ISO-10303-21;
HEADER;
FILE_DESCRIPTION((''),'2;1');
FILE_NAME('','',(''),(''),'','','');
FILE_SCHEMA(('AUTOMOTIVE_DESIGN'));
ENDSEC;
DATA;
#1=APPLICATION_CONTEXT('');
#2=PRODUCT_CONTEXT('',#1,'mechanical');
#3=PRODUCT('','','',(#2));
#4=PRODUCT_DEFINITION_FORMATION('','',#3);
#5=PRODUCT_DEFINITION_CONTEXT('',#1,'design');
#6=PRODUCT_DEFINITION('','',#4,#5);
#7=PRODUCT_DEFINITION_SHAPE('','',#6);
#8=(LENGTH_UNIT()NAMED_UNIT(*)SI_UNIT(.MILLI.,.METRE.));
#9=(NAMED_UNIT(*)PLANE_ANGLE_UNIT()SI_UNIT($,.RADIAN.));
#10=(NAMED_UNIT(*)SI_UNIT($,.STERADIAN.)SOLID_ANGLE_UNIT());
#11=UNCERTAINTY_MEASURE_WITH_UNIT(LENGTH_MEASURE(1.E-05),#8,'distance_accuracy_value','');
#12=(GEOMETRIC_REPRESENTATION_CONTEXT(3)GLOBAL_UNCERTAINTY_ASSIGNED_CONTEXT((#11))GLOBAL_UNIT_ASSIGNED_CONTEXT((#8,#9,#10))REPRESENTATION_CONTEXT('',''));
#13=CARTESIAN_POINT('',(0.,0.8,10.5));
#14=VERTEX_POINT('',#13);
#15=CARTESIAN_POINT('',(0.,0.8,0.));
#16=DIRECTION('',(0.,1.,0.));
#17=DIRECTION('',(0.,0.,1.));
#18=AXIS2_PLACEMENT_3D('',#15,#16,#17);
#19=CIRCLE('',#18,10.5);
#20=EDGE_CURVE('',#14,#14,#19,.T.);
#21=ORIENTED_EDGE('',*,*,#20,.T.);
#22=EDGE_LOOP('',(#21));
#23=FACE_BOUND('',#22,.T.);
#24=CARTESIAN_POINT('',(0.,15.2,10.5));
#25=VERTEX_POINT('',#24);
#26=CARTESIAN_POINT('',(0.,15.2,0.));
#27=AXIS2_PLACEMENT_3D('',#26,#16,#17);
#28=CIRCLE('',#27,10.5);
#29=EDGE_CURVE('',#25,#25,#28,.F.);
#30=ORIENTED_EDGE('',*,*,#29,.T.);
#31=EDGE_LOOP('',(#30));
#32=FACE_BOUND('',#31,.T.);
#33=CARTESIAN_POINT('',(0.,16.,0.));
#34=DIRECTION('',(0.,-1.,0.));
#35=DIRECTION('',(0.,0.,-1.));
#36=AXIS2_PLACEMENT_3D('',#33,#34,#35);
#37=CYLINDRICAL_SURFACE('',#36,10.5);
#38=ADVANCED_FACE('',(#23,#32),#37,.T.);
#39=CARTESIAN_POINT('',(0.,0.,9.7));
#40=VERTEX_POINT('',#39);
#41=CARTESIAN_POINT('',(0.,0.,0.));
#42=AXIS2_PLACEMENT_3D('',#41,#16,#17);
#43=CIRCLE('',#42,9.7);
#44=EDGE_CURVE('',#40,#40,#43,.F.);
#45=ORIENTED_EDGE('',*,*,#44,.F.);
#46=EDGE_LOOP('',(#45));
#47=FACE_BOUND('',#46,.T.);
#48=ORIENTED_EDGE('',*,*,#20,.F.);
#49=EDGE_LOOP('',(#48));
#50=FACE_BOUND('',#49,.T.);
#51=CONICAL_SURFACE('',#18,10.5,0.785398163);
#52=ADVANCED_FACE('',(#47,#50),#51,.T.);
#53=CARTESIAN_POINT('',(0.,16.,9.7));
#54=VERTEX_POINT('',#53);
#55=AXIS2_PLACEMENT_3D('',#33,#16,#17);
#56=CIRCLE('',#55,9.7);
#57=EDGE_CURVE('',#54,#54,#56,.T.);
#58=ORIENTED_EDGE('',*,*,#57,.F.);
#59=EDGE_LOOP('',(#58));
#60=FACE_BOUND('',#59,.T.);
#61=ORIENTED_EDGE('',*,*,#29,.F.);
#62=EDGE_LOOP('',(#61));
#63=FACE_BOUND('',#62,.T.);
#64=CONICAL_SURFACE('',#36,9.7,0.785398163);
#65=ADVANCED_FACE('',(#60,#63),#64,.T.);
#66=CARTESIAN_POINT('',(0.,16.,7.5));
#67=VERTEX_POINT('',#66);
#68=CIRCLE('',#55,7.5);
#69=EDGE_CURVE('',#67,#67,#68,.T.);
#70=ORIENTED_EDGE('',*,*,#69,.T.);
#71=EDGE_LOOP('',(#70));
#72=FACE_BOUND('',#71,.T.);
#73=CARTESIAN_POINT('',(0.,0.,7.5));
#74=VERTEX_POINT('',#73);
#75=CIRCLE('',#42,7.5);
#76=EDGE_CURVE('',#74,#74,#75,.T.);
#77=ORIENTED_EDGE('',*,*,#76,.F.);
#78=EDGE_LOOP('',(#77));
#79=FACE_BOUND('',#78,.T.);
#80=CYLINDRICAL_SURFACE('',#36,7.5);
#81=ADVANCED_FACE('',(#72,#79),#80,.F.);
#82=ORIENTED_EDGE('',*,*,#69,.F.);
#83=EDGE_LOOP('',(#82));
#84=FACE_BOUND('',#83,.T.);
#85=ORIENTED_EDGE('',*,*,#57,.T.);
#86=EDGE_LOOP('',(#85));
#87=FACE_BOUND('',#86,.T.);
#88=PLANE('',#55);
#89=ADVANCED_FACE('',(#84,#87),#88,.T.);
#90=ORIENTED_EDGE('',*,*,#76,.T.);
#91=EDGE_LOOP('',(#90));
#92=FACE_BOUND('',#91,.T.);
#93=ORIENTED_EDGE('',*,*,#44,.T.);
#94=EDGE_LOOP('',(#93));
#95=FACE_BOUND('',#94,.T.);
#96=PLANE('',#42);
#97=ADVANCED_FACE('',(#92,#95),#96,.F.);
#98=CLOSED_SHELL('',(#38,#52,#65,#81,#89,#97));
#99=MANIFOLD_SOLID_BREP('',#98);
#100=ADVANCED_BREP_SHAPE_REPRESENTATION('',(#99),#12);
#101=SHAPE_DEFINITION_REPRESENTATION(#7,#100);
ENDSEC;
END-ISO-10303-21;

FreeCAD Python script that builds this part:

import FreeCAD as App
import Part
import Sketcher
Q = App.Units.Quantity


def edges_at(feature, points):
    """Names of the edges that pass closest to the given points."""
    edges = feature.Shape.Edges
    near = lambda p: min(range(len(edges)), key=lambda i: edges[i].distToShape(Part.Vertex(*p))[0])
    return sorted({f"Edge{near(p) + 1}" for p in points})

doc = App.newDocument("Part")
body = doc.addObject("PartDesign::Body", "Body")

sketch1 = body.newObject("Sketcher::SketchObject", "Sketch")
sketch1.AttachmentSupport = (doc.getObject("XZ_Plane"), [""])
sketch1.MapMode = "FlatFace"
sketch1.addGeometry([
    Part.Circle(App.Vector(0, 0, 0), App.Vector(0, 0, 1), 10.5),
    Part.Circle(App.Vector(0, 0, 0), App.Vector(0, 0, 1), 7.5),
], False)
sketch1.addConstraint([
    Sketcher.Constraint("Coincident", 0, 3, -1, 1),
    Sketcher.Constraint("Coincident", 1, 3, -1, 1),
    Sketcher.Constraint("Diameter", 0, Q("21 mm")),
    Sketcher.Constraint("Diameter", 1, Q("15 mm")),
])
pad1 = body.newObject("PartDesign::Pad", "Pad")
pad1.Profile = sketch1
pad1.Length = 16
pad1.Reversed = True
doc.recompute()

chamfer = body.newObject("PartDesign::Chamfer", "Chamfer")
chamfer.Base = (pad1, edges_at(pad1, [(0, 0, -10.5), (0, 16, -10.5)]))
chamfer.Size = 0.8

doc.recompute()
